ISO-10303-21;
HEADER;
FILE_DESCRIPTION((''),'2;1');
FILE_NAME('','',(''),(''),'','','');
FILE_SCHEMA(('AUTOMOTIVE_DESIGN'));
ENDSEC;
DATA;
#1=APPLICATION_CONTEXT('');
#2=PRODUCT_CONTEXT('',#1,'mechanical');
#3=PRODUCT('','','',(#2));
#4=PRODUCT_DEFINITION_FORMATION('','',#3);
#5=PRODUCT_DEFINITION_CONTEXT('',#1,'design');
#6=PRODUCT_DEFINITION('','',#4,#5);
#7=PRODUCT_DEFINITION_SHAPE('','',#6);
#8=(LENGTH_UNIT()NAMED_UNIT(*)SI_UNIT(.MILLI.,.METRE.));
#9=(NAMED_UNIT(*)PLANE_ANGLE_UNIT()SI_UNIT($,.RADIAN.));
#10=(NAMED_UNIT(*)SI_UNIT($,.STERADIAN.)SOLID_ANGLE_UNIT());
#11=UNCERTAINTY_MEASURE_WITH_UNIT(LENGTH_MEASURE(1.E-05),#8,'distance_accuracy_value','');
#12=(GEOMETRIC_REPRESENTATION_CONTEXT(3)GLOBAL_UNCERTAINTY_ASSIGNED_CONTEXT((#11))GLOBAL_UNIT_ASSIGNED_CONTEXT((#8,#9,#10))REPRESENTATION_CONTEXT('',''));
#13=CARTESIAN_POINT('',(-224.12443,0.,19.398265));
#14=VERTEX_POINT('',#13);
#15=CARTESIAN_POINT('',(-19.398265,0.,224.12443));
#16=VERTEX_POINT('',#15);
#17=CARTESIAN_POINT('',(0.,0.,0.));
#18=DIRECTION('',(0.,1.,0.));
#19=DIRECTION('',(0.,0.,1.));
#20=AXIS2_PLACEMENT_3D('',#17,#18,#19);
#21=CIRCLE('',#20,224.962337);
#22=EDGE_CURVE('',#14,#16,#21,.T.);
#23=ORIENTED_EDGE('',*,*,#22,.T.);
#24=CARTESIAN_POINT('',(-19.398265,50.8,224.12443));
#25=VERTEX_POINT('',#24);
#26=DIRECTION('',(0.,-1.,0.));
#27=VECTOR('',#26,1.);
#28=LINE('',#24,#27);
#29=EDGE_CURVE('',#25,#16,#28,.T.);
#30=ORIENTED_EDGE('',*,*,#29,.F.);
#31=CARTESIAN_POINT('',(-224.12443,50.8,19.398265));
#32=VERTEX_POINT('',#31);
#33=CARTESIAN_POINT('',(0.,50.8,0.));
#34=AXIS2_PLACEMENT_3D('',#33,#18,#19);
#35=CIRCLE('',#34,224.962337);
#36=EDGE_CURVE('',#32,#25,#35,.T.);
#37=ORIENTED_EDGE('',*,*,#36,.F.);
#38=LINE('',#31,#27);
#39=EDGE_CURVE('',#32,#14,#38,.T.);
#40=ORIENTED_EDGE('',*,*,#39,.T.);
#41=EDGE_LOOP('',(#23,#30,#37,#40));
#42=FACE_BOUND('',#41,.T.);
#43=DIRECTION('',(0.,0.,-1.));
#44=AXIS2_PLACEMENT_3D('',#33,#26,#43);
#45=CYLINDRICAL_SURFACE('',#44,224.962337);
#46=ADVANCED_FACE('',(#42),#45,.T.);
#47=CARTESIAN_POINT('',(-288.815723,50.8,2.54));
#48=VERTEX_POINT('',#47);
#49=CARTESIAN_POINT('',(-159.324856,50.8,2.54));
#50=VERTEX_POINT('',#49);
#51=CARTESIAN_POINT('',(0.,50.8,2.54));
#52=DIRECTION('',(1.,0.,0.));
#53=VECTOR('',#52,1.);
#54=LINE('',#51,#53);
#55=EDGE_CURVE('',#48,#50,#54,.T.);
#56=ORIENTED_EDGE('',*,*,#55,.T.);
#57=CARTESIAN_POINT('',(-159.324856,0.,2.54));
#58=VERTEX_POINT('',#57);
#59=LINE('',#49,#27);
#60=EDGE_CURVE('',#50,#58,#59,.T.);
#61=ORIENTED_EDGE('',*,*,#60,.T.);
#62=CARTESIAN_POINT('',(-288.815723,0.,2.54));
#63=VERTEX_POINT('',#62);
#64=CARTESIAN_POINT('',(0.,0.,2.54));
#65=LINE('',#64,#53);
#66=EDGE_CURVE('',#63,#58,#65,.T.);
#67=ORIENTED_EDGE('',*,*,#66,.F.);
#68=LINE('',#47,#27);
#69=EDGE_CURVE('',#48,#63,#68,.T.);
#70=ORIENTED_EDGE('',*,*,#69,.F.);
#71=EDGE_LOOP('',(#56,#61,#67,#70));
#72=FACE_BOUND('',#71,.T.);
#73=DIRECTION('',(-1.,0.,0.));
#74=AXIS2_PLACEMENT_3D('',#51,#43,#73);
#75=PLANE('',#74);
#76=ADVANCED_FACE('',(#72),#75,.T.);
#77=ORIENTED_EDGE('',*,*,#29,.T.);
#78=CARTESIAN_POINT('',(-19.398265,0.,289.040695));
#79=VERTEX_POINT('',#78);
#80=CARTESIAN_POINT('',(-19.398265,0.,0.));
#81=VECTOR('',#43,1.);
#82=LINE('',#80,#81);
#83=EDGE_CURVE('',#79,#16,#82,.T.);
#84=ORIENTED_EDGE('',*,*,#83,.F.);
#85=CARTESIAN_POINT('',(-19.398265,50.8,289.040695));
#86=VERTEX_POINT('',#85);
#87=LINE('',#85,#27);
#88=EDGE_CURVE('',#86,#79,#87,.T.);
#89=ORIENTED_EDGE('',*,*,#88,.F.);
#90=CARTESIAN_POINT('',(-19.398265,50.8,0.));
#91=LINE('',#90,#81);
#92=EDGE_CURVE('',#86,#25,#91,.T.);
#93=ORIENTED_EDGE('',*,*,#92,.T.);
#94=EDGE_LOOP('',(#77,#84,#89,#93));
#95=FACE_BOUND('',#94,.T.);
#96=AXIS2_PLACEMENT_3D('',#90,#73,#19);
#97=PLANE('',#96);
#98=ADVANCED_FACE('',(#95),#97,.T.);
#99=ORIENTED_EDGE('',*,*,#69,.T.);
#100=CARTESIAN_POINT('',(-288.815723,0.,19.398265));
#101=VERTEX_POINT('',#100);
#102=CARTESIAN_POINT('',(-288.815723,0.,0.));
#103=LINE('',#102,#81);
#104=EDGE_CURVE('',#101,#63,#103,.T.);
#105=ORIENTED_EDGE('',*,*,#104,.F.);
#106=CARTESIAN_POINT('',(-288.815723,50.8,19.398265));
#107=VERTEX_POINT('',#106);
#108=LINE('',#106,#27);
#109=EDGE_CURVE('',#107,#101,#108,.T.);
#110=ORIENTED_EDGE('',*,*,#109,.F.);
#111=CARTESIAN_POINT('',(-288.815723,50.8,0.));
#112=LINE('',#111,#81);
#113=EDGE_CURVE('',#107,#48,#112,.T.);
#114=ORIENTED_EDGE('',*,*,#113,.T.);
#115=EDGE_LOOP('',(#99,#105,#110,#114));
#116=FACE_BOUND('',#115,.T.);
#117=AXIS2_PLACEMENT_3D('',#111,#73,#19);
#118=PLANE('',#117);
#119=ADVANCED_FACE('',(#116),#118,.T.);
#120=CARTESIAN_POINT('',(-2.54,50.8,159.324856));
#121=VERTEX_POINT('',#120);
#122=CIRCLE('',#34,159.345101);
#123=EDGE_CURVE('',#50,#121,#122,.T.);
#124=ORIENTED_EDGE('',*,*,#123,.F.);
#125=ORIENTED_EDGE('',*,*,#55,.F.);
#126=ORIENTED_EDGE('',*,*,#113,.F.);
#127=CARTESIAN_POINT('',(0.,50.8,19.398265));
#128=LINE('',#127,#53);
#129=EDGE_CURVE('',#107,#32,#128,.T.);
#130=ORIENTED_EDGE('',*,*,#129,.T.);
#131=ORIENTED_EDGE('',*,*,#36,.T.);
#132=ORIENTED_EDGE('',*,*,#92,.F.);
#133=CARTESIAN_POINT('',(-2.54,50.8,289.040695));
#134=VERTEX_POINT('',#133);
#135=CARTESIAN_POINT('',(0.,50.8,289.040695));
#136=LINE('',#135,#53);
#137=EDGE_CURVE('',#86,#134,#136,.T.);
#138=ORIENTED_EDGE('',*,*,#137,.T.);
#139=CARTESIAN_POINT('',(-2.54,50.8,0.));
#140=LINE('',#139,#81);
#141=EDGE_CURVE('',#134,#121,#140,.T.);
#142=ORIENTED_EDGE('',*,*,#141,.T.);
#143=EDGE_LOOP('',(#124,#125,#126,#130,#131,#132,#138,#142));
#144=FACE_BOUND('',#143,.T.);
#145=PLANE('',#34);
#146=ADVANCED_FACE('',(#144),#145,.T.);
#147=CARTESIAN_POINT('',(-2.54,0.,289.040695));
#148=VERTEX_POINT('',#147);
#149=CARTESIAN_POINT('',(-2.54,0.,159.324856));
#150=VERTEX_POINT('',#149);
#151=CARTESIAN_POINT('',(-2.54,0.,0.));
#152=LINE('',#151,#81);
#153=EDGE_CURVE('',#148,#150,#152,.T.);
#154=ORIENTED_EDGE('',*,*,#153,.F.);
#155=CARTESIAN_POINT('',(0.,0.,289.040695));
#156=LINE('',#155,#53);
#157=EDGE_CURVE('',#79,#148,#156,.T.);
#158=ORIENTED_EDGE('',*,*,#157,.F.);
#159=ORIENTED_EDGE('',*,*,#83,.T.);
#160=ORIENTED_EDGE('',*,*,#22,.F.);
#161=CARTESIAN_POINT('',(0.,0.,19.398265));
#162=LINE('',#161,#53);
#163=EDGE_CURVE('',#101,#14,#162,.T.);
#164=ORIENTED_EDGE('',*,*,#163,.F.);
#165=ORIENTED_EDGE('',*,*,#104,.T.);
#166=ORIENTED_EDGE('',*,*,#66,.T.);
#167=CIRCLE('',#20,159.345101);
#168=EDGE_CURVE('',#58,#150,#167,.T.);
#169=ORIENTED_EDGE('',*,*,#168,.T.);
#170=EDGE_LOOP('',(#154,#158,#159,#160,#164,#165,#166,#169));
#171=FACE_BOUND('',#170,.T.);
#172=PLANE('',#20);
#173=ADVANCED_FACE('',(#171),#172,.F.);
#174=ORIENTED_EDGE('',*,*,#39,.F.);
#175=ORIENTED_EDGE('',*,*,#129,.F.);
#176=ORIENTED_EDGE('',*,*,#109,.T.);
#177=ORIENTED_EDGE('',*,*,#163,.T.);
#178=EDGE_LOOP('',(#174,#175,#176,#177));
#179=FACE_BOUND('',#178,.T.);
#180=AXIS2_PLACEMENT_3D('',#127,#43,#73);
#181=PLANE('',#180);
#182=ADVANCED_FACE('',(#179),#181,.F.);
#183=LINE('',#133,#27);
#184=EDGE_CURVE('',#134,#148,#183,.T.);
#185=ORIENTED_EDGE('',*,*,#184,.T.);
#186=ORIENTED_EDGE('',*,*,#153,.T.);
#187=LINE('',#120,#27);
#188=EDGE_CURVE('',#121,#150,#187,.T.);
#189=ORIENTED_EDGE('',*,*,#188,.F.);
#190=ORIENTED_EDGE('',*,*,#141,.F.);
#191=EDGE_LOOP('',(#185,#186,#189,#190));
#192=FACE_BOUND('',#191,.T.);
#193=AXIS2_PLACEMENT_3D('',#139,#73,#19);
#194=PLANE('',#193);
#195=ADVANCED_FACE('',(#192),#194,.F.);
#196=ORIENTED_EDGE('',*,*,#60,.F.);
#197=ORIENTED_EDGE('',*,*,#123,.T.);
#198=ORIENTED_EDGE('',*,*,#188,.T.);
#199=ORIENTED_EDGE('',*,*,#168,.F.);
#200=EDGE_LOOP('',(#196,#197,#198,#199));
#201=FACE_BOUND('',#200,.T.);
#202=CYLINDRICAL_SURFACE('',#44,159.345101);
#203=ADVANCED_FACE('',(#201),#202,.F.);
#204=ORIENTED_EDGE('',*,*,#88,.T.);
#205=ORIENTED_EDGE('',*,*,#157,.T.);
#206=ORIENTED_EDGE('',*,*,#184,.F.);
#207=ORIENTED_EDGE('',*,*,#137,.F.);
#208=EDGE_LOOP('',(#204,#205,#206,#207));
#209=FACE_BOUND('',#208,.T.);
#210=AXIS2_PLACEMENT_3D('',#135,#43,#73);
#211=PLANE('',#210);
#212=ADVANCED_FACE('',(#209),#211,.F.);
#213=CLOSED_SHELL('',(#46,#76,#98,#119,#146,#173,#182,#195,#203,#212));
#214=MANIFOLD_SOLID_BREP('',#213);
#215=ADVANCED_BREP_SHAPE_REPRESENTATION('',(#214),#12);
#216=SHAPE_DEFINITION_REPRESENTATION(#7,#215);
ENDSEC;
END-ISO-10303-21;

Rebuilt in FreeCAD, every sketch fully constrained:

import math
import FreeCAD as App
import Part
import Sketcher
Q = App.Units.Quantity

doc = App.newDocument("Part")
body = doc.addObject("PartDesign::Body", "Body")

# Sketch on XZ plane
sketch1 = body.newObject("Sketcher::SketchObject", "Sketch")
sketch1.AttachmentSupport = (doc.getObject("XZ_Plane"), [""])
sketch1.MapMode = "FlatFace"
sketch1.addGeometry([
    Part.LineSegment(App.Vector(-289, 19, 0), App.Vector(-224, 19, 0)),  # 0
    Part.ArcOfCircle(Part.Circle(App.Vector(0, 0, 0), App.Vector(0, 0, 1), 225), math.radians(95), math.radians(175)),  # 1
    Part.LineSegment(App.Vector(-19, 224, 0), App.Vector(-19, 289, 0)),  # 2
    Part.LineSegment(App.Vector(-19, 289, 0), App.Vector(-3, 289, 0)),  # 3
    Part.LineSegment(App.Vector(-3, 289, 0), App.Vector(-3, 159, 0)),  # 4
    Part.ArcOfCircle(Part.Circle(App.Vector(0, 0, 0), App.Vector(0, 0, 1), 159), math.radians(91), math.radians(179)),  # 5
    Part.LineSegment(App.Vector(-159, 3, 0), App.Vector(-289, 3, 0)),  # 6
    Part.LineSegment(App.Vector(-289, 3, 0), App.Vector(-289, 19, 0)),  # 7
], False)
sketch1.addConstraint([
    Sketcher.Constraint("Coincident", 0, 2, 1, 2),
    Sketcher.Constraint("Coincident", 1, 1, 2, 1),
    Sketcher.Constraint("Coincident", 2, 2, 3, 1),
    Sketcher.Constraint("Coincident", 3, 2, 4, 1),
    Sketcher.Constraint("Coincident", 4, 2, 5, 1),
    Sketcher.Constraint("Coincident", 5, 2, 6, 1),
    Sketcher.Constraint("Coincident", 6, 2, 7, 1),
    Sketcher.Constraint("Coincident", 7, 2, 0, 1),
    Sketcher.Constraint("Horizontal", 0),
    Sketcher.Constraint("Vertical", 2),
    Sketcher.Constraint("Horizontal", 3),
    Sketcher.Constraint("Vertical", 4),
    Sketcher.Constraint("Horizontal", 6),
    Sketcher.Constraint("Vertical", 7),
    Sketcher.Constraint("Coincident", 1, 3, -1, 1),
    Sketcher.Constraint("Coincident", 5, 3, -1, 1),
    Sketcher.Constraint("Equal", 3, 7),
    Sketcher.Constraint("DistanceX", 3, 2, -1, 1, Q("0.1 in")),
    Sketcher.Constraint("DistanceY", -1, 1, 5, 2, Q("0.1 in")),
    Sketcher.Constraint("Radius", 5, 159.345101),
    Sketcher.Constraint("Radius", 1, 224.962337),
    Sketcher.Constraint("DistanceY", 4, 2, 4, 1, 129.715839),
    Sketcher.Constraint("DistanceX", 0, 1, 0, 2, 64.691292),
    Sketcher.Constraint("DistanceX", 3, 1, 3, 2, 16.858265),
])
pad1 = body.newObject("PartDesign::Pad", "Pad")
pad1.Profile = sketch1
pad1.Length = Q("2 in")
pad1.Reversed = True

doc.recompute()
